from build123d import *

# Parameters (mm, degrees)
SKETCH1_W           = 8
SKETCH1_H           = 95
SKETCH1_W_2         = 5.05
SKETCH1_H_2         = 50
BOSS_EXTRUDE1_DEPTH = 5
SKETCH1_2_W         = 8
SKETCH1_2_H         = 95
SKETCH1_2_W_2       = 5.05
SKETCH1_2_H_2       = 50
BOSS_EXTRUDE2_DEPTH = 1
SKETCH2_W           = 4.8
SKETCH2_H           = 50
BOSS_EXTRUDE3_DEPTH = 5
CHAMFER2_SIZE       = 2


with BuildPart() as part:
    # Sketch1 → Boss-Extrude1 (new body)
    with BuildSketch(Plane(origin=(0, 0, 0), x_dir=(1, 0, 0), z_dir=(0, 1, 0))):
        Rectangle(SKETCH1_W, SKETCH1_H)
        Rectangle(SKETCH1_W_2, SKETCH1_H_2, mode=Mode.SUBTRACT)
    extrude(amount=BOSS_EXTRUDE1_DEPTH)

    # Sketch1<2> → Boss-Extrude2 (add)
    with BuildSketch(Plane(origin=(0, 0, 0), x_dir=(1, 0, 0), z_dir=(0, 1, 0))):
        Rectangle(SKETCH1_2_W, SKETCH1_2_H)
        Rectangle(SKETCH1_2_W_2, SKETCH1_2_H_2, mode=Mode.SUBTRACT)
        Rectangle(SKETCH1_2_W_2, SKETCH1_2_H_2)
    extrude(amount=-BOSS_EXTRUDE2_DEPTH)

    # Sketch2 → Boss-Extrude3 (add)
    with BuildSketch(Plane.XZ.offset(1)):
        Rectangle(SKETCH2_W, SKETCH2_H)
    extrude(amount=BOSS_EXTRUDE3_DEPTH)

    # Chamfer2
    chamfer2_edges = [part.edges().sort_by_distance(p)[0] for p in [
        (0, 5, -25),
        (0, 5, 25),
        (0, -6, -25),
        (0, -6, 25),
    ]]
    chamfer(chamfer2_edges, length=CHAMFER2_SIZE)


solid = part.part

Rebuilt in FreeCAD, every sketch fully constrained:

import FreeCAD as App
import Part
import Sketcher

V = App.Vector
Q = App.Units.Quantity


def edges_at(feature, points):
    """Names of the edges that pass closest to the given points."""
    edges = feature.Shape.Edges
    near = lambda p: min(range(len(edges)), key=lambda i: edges[i].distToShape(Part.Vertex(*p))[0])
    return sorted({f"Edge{near(p) + 1}" for p in points})

doc = App.newDocument("Part")
body = doc.addObject("PartDesign::Body", "Body")

# Sketch on XZ plane
sketch1 = body.newObject("Sketcher::SketchObject", "Sketch")
sketch1.AttachmentSupport = (doc.getObject("XZ_Plane"), [""])
sketch1.MapMode = "FlatFace"
sketch1.addGeometry(Part.LineSegment(V(-4, -47.5, 0), V(-4, 47.5, 0)), False)
sketch1.addGeometry(Part.LineSegment(V(-4, 47.5, 0), V(4, 47.5, 0)), False)
sketch1.addGeometry(Part.LineSegment(V(4, 47.5, 0), V(4, -47.5, 0)), False)
sketch1.addGeometry(Part.LineSegment(V(4, -47.5, 0), V(-4, -47.5, 0)), False)
sketch1.addGeometry(Part.LineSegment(V(2.525, 25, 0), V(-2.525, 25, 0)), False)
sketch1.addGeometry(Part.LineSegment(V(-2.525, 25, 0), V(-2.525, -25, 0)), False)
sketch1.addGeometry(Part.LineSegment(V(-2.525, -25, 0), V(2.525, -25, 0)), False)
sketch1.addGeometry(Part.LineSegment(V(2.525, -25, 0), V(2.525, 25, 0)), False)
sketch1.addConstraint(Sketcher.Constraint("Coincident", 0, 2, 1, 1))
sketch1.addConstraint(Sketcher.Constraint("Coincident", 1, 2, 2, 1))
sketch1.addConstraint(Sketcher.Constraint("Coincident", 2, 2, 3, 1))
sketch1.addConstraint(Sketcher.Constraint("Coincident", 3, 2, 0, 1))
sketch1.addConstraint(Sketcher.Constraint("Coincident", 4, 2, 5, 1))
sketch1.addConstraint(Sketcher.Constraint("Coincident", 5, 2, 6, 1))
sketch1.addConstraint(Sketcher.Constraint("Coincident", 6, 2, 7, 1))
sketch1.addConstraint(Sketcher.Constraint("Coincident", 7, 2, 4, 1))
sketch1.addConstraint(Sketcher.Constraint("Vertical", 0))
sketch1.addConstraint(Sketcher.Constraint("Horizontal", 1))
sketch1.addConstraint(Sketcher.Constraint("Vertical", 2))
sketch1.addConstraint(Sketcher.Constraint("Horizontal", 3))
sketch1.addConstraint(Sketcher.Constraint("Horizontal", 4))
sketch1.addConstraint(Sketcher.Constraint("Vertical", 5))
sketch1.addConstraint(Sketcher.Constraint("Horizontal", 6))
sketch1.addConstraint(Sketcher.Constraint("Vertical", 7))
sketch1.addConstraint(Sketcher.Constraint("Symmetric", 0, 2, 2, 2, -1, 1))
sketch1.addConstraint(Sketcher.Constraint("Symmetric", 4, 2, 6, 2, -1, 1))
sketch1.addConstraint(Sketcher.Constraint("DistanceX", 1, 1, 1, 2, Q("8 mm")))
sketch1.addConstraint(Sketcher.Constraint("DistanceY", 0, 1, 0, 2, Q("95 mm")))
sketch1.addConstraint(Sketcher.Constraint("DistanceY", 5, 2, 5, 1, Q("50 mm")))
sketch1.addConstraint(Sketcher.Constraint("DistanceX", 4, 2, 4, 1, Q("5.05 mm")))
pad1 = body.newObject("PartDesign::Pad", "Pad")
pad1.Profile = sketch1
pad1.Length = 5
pad1.Reversed = True

# Sketch on XZ plane
sketch2 = body.newObject("Sketcher::SketchObject", "Sketch001")
sketch2.AttachmentSupport = (doc.getObject("XZ_Plane"), [""])
sketch2.MapMode = "FlatFace"
sketch2.addGeometry(Part.LineSegment(V(-4, -47.5, 0), V(-4, 47.5, 0)), False)
sketch2.addGeometry(Part.LineSegment(V(-4, 47.5, 0), V(4, 47.5, 0)), False)
sketch2.addGeometry(Part.LineSegment(V(4, 47.5, 0), V(4, -47.5, 0)), False)
sketch2.addGeometry(Part.LineSegment(V(4, -47.5, 0), V(-4, -47.5, 0)), False)
sketch2.addConstraint(Sketcher.Constraint("Coincident", 0, 2, 1, 1))
sketch2.addConstraint(Sketcher.Constraint("Coincident", 1, 2, 2, 1))
sketch2.addConstraint(Sketcher.Constraint("Coincident", 2, 2, 3, 1))
sketch2.addConstraint(Sketcher.Constraint("Coincident", 3, 2, 0, 1))
sketch2.addConstraint(Sketcher.Constraint("Vertical", 0))
sketch2.addConstraint(Sketcher.Constraint("Horizontal", 1))
sketch2.addConstraint(Sketcher.Constraint("Vertical", 2))
sketch2.addConstraint(Sketcher.Constraint("Horizontal", 3))
sketch2.addConstraint(Sketcher.Constraint("Symmetric", 0, 2, 2, 2, -1, 1))
sketch2.addConstraint(Sketcher.Constraint("DistanceX", 1, 1, 1, 2, Q("8 mm")))
sketch2.addConstraint(Sketcher.Constraint("DistanceY", 0, 1, 0, 2, Q("95 mm")))
pad2 = body.newObject("PartDesign::Pad", "Pad001")
pad2.Profile = sketch2
pad2.Length = 1

# Sketch on XZ plane
sketch3 = body.newObject("Sketcher::SketchObject", "Sketch002")
sketch3.AttachmentSupport = (doc.getObject("XZ_Plane"), [""])
sketch3.MapMode = "FlatFace"
sketch3.AttachmentOffset = App.Placement(V(0, 0, 1), App.Rotation())
sketch3.addGeometry(Part.LineSegment(V(-2.4, 25, 0), V(-2.4, -25, 0)), False)
sketch3.addGeometry(Part.LineSegment(V(-2.4, -25, 0), V(2.4, -25, 0)), False)
sketch3.addGeometry(Part.LineSegment(V(2.4, -25, 0), V(2.4, 25, 0)), False)
sketch3.addGeometry(Part.LineSegment(V(2.4, 25, 0), V(-2.4, 25, 0)), False)
sketch3.addConstraint(Sketcher.Constraint("Coincident", 0, 2, 1, 1))
sketch3.addConstraint(Sketcher.Constraint("Coincident", 1, 2, 2, 1))
sketch3.addConstraint(Sketcher.Constraint("Coincident", 2, 2, 3, 1))
sketch3.addConstraint(Sketcher.Constraint("Coincident", 3, 2, 0, 1))
sketch3.addConstraint(Sketcher.Constraint("Vertical", 0))
sketch3.addConstraint(Sketcher.Constraint("Horizontal", 1))
sketch3.addConstraint(Sketcher.Constraint("Vertical", 2))
sketch3.addConstraint(Sketcher.Constraint("Horizontal", 3))
sketch3.addConstraint(Sketcher.Constraint("Symmetric", 0, 2, 2, 2, -1, 1))
sketch3.addConstraint(Sketcher.Constraint("DistanceY", 0, 2, 0, 1, Q("50 mm")))
sketch3.addConstraint(Sketcher.Constraint("DistanceX", 1, 1, 1, 2, Q("4.8 mm")))
pad3 = body.newObject("PartDesign::Pad", "Pad002")
pad3.Profile = sketch3
pad3.Length = 5
doc.recompute()

chamfer = body.newObject("PartDesign::Chamfer", "Chamfer")
chamfer.Base = (pad3, edges_at(pad3, [
    (0, 5, -25),
    (0, 5, 25),
    (0, -6, -25),
    (0, -6, 25),
]))
chamfer.Size = 2

doc.recompute()
